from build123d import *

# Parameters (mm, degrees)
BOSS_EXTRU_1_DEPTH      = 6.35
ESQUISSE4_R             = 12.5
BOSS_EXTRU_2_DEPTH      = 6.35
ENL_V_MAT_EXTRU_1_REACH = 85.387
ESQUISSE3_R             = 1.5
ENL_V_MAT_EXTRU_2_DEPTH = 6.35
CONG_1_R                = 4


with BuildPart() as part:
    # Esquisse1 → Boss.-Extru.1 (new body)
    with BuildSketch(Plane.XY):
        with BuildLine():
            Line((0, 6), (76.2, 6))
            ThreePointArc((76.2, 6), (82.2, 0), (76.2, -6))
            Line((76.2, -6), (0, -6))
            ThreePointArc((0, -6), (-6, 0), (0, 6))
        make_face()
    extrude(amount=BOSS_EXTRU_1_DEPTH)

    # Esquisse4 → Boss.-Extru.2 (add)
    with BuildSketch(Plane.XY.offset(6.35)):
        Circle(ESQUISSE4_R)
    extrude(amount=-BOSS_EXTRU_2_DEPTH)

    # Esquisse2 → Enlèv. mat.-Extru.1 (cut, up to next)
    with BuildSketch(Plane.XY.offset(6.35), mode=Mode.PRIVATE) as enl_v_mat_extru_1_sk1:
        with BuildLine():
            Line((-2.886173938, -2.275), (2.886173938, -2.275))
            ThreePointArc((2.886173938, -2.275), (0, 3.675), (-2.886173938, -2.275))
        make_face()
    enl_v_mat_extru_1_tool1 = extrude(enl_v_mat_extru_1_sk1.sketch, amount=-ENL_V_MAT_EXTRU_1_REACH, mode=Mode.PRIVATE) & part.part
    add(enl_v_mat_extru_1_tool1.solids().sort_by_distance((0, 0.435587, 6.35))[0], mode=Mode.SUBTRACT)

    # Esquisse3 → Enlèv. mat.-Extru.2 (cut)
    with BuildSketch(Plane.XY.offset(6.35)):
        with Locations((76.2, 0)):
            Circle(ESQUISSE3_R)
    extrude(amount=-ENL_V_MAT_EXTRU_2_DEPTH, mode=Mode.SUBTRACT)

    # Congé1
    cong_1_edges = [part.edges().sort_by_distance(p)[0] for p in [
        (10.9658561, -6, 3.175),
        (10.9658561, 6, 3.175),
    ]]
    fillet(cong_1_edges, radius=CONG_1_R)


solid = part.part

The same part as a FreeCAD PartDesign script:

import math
import FreeCAD as App
import Part
import Sketcher

V = App.Vector


def edges_at(feature, points):
    """Names of the edges that pass closest to the given points."""
    edges = feature.Shape.Edges
    near = lambda p: min(range(len(edges)), key=lambda i: edges[i].distToShape(Part.Vertex(*p))[0])
    return sorted({f"Edge{near(p) + 1}" for p in points})

doc = App.newDocument("Part")
body = doc.addObject("PartDesign::Body", "Body")

# Sketch on XY plane
sketch1 = body.newObject("Sketcher::SketchObject", "Sketch")
sketch1.AttachmentSupport = (doc.getObject("XY_Plane"), [""])
sketch1.MapMode = "FlatFace"
sketch1.addGeometry(Part.LineSegment(V(76.2, 6, 0), V(0, 6, 0)), False)
sketch1.addGeometry(Part.ArcOfCircle(Part.Circle(V(0, 0, 0), V(0, 0, 1), 6), math.radians(90), math.radians(270)), False)
sketch1.addGeometry(Part.LineSegment(V(0, -6, 0), V(76.2, -6, 0)), False)
sketch1.addGeometry(Part.ArcOfCircle(Part.Circle(V(76.2, 0, 0), V(0, 0, 1), 6), math.radians(-90), math.radians(90)), False)
sketch1.addConstraint(Sketcher.Constraint("Tangent", 0, 2, 1, 1))
sketch1.addConstraint(Sketcher.Constraint("Tangent", 1, 2, 2, 1))
sketch1.addConstraint(Sketcher.Constraint("Tangent", 2, 2, 3, 1))
sketch1.addConstraint(Sketcher.Constraint("Tangent", 3, 2, 0, 1))
sketch1.addConstraint(Sketcher.Constraint("Horizontal", 0))
sketch1.addConstraint(Sketcher.Constraint("Horizontal", 2))
sketch1.addConstraint(Sketcher.Constraint("Coincident", 1, 3, -1, 1))
sketch1.addConstraint(Sketcher.Constraint("Radius", 1, 6.0))
sketch1.addConstraint(Sketcher.Constraint("DistanceX", 0, 2, 0, 1, 76.2))
pad1 = body.newObject("PartDesign::Pad", "Pad")
pad1.Profile = sketch1
pad1.Length = 6.35

# Sketch on XY plane
sketch2 = body.newObject("Sketcher::SketchObject", "Sketch001")
sketch2.AttachmentSupport = (doc.getObject("XY_Plane"), [""])
sketch2.MapMode = "FlatFace"
sketch2.AttachmentOffset = App.Placement(V(0, 0, 6.35), App.Rotation())
sketch2.addGeometry(Part.Circle(V(0, 0, 0), V(0, 0, 1), 12.5), False)
sketch2.addConstraint(Sketcher.Constraint("Coincident", 0, 3, -1, 1))
sketch2.addConstraint(Sketcher.Constraint("Diameter", 0, 25.0))
pad2 = body.newObject("PartDesign::Pad", "Pad001")
pad2.Profile = sketch2
pad2.Length = 6.35
pad2.Reversed = True

# Sketch on XY plane
sketch3 = body.newObject("Sketcher::SketchObject", "Sketch002")
sketch3.AttachmentSupport = (doc.getObject("XY_Plane"), [""])
sketch3.MapMode = "FlatFace"
sketch3.AttachmentOffset = App.Placement(V(0, 0, 6.35), App.Rotation())
sketch3.addGeometry(Part.LineSegment(V(-2.886174, -2.275, 0), V(2.886174, -2.275, 0)), False)
sketch3.addGeometry(Part.ArcOfCircle(Part.Circle(V(0, 0, 0), V(0, 0, 1), 3.675), math.radians(-38.24662), math.radians(218.24662)), False)
sketch3.addConstraint(Sketcher.Constraint("Coincident", 0, 1, 1, 2))
sketch3.addConstraint(Sketcher.Constraint("Coincident", 1, 1, 0, 2))
sketch3.addConstraint(Sketcher.Constraint("Horizontal", 0))
sketch3.addConstraint(Sketcher.Constraint("Coincident", 1, 3, -1, 1))
sketch3.addConstraint(Sketcher.Constraint("Radius", 1, 3.675))
sketch3.addConstraint(Sketcher.Constraint("DistanceY", 0, 1, -1, 1, 2.275))
pocket1 = body.newObject("PartDesign::Pocket", "Pocket")
pocket1.Profile = sketch3
pocket1.Type = "UpToFirst"

# Sketch on XY plane
sketch4 = body.newObject("Sketcher::SketchObject", "Sketch003")
sketch4.AttachmentSupport = (doc.getObject("XY_Plane"), [""])
sketch4.MapMode = "FlatFace"
sketch4.AttachmentOffset = App.Placement(V(0, 0, 6.35), App.Rotation())
sketch4.addGeometry(Part.Circle(V(76.2, 0, 0), V(0, 0, 1), 1.5), False)
sketch4.addConstraint(Sketcher.Constraint("PointOnObject", 0, 3, -1))
sketch4.addConstraint(Sketcher.Constraint("Diameter", 0, 3.0))
sketch4.addConstraint(Sketcher.Constraint("DistanceX", -1, 1, 0, 3, 76.2))
pocket2 = body.newObject("PartDesign::Pocket", "Pocket001")
pocket2.Profile = sketch4
pocket2.Length = 6.35
doc.recompute()

fillet = body.newObject("PartDesign::Fillet", "Fillet")
fillet.Base = (pocket2, edges_at(pocket2, [(10.966, -6, 3.175), (10.966, 6, 3.175)]))
fillet.Radius = 4

doc.recompute()
